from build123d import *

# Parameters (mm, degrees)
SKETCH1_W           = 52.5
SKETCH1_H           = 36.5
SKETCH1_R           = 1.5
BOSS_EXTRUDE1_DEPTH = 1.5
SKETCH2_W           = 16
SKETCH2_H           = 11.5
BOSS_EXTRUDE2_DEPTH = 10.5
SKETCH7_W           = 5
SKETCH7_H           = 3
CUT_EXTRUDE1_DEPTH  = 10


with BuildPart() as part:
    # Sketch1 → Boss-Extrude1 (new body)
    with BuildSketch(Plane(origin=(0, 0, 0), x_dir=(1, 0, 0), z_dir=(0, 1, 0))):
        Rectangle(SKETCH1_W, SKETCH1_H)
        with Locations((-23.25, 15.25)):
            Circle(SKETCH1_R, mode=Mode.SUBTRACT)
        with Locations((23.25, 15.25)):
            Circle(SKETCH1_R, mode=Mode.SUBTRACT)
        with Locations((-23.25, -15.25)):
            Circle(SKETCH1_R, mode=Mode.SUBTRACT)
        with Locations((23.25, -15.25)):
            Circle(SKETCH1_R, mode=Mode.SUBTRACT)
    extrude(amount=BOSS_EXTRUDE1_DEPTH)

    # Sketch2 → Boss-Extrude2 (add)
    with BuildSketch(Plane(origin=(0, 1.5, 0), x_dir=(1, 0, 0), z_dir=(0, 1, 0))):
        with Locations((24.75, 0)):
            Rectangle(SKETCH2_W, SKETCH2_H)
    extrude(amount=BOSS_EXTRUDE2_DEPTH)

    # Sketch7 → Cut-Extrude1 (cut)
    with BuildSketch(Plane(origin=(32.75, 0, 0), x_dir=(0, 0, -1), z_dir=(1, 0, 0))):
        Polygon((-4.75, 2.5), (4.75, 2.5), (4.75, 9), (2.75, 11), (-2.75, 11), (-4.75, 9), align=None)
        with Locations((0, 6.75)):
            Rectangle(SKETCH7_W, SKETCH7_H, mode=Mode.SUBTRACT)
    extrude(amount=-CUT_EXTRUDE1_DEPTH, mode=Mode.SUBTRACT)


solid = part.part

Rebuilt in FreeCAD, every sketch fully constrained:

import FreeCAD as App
import Part
import Sketcher
from FreeCAD import Vector

doc = App.newDocument("Part")
body = doc.addObject("PartDesign::Body", "Body")

sketch1 = body.newObject("Sketcher::SketchObject", "Sketch")
sketch1.AttachmentSupport = (doc.getObject("XZ_Plane"), [""])
sketch1.MapMode = "FlatFace"
sketch1.addGeometry([
    Part.LineSegment(Vector(-26.25, -18.25, 0), Vector(-26.25, 18.25, 0)),
    Part.LineSegment(Vector(-26.25, 18.25, 0), Vector(26.25, 18.25, 0)),
    Part.LineSegment(Vector(26.25, 18.25, 0), Vector(26.25, -18.25, 0)),
    Part.LineSegment(Vector(26.25, -18.25, 0), Vector(-26.25, -18.25, 0)),
    Part.Circle(Vector(-23.25, 15.25, 0), Vector(0, 0, 1), 1.5),
    Part.Circle(Vector(23.25, 15.25, 0), Vector(0, 0, 1), 1.5),
    Part.Circle(Vector(-23.25, -15.25, 0), Vector(0, 0, 1), 1.5),
    Part.Circle(Vector(23.25, -15.25, 0), Vector(0, 0, 1), 1.5),
], False)
sketch1.addConstraint([
    Sketcher.Constraint("Coincident", 0, 2, 1, 1),
    Sketcher.Constraint("Coincident", 1, 2, 2, 1),
    Sketcher.Constraint("Coincident", 2, 2, 3, 1),
    Sketcher.Constraint("Coincident", 3, 2, 0, 1),
    Sketcher.Constraint("Vertical", 0),
    Sketcher.Constraint("Horizontal", 1),
    Sketcher.Constraint("Vertical", 2),
    Sketcher.Constraint("Horizontal", 3),
    Sketcher.Constraint("Equal", 4, 5),
    Sketcher.Constraint("Equal", 5, 6),
    Sketcher.Constraint("Equal", 6, 7),
    Sketcher.Constraint("Symmetric", 5, 3, 6, 3, -1, 1),
    Sketcher.Constraint("Symmetric", 4, 3, 7, 3, -1, 1),
    Sketcher.Constraint("Symmetric", 0, 2, 2, 2, -1, 1),
    Sketcher.Constraint("Symmetric", 4, 3, 5, 3, -2),
    Sketcher.Constraint("Diameter", 4, 3.0),
    Sketcher.Constraint("DistanceX", 1, 1, 1, 2, 52.5),
    Sketcher.Constraint("DistanceY", 0, 1, 0, 2, 36.5),
    Sketcher.Constraint("DistanceX", 0, 2, 4, 3, 3.0),
    Sketcher.Constraint("DistanceY", 4, 3, 0, 2, 3.0),
])
pad1 = body.newObject("PartDesign::Pad", "Pad")
pad1.Profile = sketch1
pad1.Length = 1.5
pad1.Reversed = True

sketch2 = body.newObject("Sketcher::SketchObject", "Sketch001")
sketch2.AttachmentSupport = (doc.getObject("XZ_Plane"), [""])
sketch2.MapMode = "FlatFace"
sketch2.AttachmentOffset = App.Placement(Vector(0, 0, -1.5), App.Rotation())
sketch2.addGeometry([
    Part.LineSegment(Vector(16.75, -5.75, 0), Vector(16.75, 5.75, 0)),
    Part.LineSegment(Vector(16.75, 5.75, 0), Vector(32.75, 5.75, 0)),
    Part.LineSegment(Vector(32.75, 5.75, 0), Vector(32.75, -5.75, 0)),
    Part.LineSegment(Vector(32.75, -5.75, 0), Vector(16.75, -5.75, 0)),
], False)
sketch2.addConstraint([
    Sketcher.Constraint("Coincident", 0, 2, 1, 1),
    Sketcher.Constraint("Coincident", 1, 2, 2, 1),
    Sketcher.Constraint("Coincident", 2, 2, 3, 1),
    Sketcher.Constraint("Coincident", 3, 2, 0, 1),
    Sketcher.Constraint("Vertical", 0),
    Sketcher.Constraint("Horizontal", 1),
    Sketcher.Constraint("Vertical", 2),
    Sketcher.Constraint("Horizontal", 3),
    Sketcher.Constraint("DistanceX", 1, 1, 1, 2, 16.0),
    Sketcher.Constraint("DistanceY", 0, 1, 0, 2, 11.5),
    Sketcher.Constraint("DistanceX", -1, 1, 0, 2, 16.75),
    Sketcher.Constraint("DistanceY", -1, 1, 0, 2, 5.75),
])
pad2 = body.newObject("PartDesign::Pad", "Pad001")
pad2.Profile = sketch2
pad2.Length = 10.5
pad2.Reversed = True

sketch3 = body.newObject("Sketcher::SketchObject", "Sketch002")
sketch3.AttachmentSupport = (doc.getObject("YZ_Plane"), [""])
sketch3.MapMode = "FlatFace"
sketch3.AttachmentOffset = App.Placement(Vector(0, 0, 32.75), App.Rotation())
sketch3.addGeometry([
    Part.LineSegment(Vector(2.5, 4.75, 0), Vector(2.5, -4.75, 0)),
    Part.LineSegment(Vector(2.5, -4.75, 0), Vector(9, -4.75, 0)),
    Part.LineSegment(Vector(9, -4.75, 0), Vector(11, -2.75, 0)),
    Part.LineSegment(Vector(11, -2.75, 0), Vector(11, 2.75, 0)),
    Part.LineSegment(Vector(11, 2.75, 0), Vector(9, 4.75, 0)),
    Part.LineSegment(Vector(9, 4.75, 0), Vector(2.5, 4.75, 0)),
    Part.LineSegment(Vector(5.25, -2.5, 0), Vector(5.25, 2.5, 0)),
    Part.LineSegment(Vector(5.25, 2.5, 0), Vector(8.25, 2.5, 0)),
    Part.LineSegment(Vector(8.25, 2.5, 0), Vector(8.25, -2.5, 0)),
    Part.LineSegment(Vector(8.25, -2.5, 0), Vector(5.25, -2.5, 0)),
], False)
sketch3.addConstraint([
    Sketcher.Constraint("Coincident", 0, 2, 1, 1),
    Sketcher.Constraint("Coincident", 1, 2, 2, 1),
    Sketcher.Constraint("Coincident", 2, 2, 3, 1),
    Sketcher.Constraint("Coincident", 3, 2, 4, 1),
    Sketcher.Constraint("Coincident", 4, 2, 5, 1),
    Sketcher.Constraint("Coincident", 5, 2, 0, 1),
    Sketcher.Constraint("Coincident", 6, 2, 7, 1),
    Sketcher.Constraint("Coincident", 7, 2, 8, 1),
    Sketcher.Constraint("Coincident", 8, 2, 9, 1),
    Sketcher.Constraint("Coincident", 9, 2, 6, 1),
    Sketcher.Constraint("Vertical", 0),
    Sketcher.Constraint("Horizontal", 1),
    Sketcher.Constraint("Vertical", 3),
    Sketcher.Constraint("Horizontal", 5),
    Sketcher.Constraint("Vertical", 6),
    Sketcher.Constraint("Horizontal", 7),
    Sketcher.Constraint("Vertical", 8),
    Sketcher.Constraint("Horizontal", 9),
    Sketcher.Constraint("Symmetric", 1, 2, 4, 2, -1),
    Sketcher.Constraint("Perpendicular", 2, 4),
    Sketcher.Constraint("Equal", 2, 4),
    Sketcher.Constraint("DistanceX", 7, 1, 7, 2, 3.0),
    Sketcher.Constraint("DistanceY", 6, 1, 6, 2, 5.0),
    Sketcher.Constraint("DistanceX", 1, 1, 1, 2, 6.5),
    Sketcher.Constraint("DistanceY", 0, 2, 0, 1, 9.5),
    Sketcher.Constraint("DistanceY", 3, 1, 3, 2, 5.5),
    Sketcher.Constraint("DistanceX", -1, 1, 1, 2, 9.0),
    Sketcher.Constraint("DistanceY", -1, 1, 6, 2, 2.5),
    Sketcher.Constraint("DistanceX", -1, 1, 6, 2, 5.25),
])
pocket1 = body.newObject("PartDesign::Pocket", "Pocket")
pocket1.Profile = sketch3
pocket1.Length = 10

doc.recompute()
